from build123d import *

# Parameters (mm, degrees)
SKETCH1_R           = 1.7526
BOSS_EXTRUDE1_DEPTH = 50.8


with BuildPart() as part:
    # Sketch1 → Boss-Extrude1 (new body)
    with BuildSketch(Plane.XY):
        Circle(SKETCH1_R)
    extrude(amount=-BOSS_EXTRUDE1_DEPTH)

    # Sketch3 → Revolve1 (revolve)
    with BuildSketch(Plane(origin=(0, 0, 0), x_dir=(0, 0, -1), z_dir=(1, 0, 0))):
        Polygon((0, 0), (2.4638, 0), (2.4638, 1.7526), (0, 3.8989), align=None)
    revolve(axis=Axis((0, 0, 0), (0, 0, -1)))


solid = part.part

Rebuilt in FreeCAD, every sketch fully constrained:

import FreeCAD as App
import Part
import Sketcher
from FreeCAD import Vector
Q = App.Units.Quantity


def add_polygon(sketch, points):
    """Adds a closed chain of lines whose ends are joined by coincident constraints."""
    first, n = sketch.GeometryCount, len(points)
    for a, b in zip(points, points[1:] + points[:1]):
        sketch.addGeometry(Part.LineSegment(App.Vector(*a, 0), App.Vector(*b, 0)), False)
    for i in range(n):
        sketch.addConstraint(Sketcher.Constraint("Coincident", first + i, 2, first + (i + 1) % n, 1))

doc = App.newDocument("Part")
body = doc.addObject("PartDesign::Body", "Body")

sketch1 = body.newObject("Sketcher::SketchObject", "Sketch")
sketch1.AttachmentSupport = (doc.getObject("XY_Plane"), [""])
sketch1.MapMode = "FlatFace"
sketch1.addGeometry(Part.Circle(Vector(0, 0, 0), Vector(0, 0, 1), 1.8), False)
sketch1.addConstraint(Sketcher.Constraint("Coincident", 0, 3, -1, 1))
sketch1.addConstraint(Sketcher.Constraint("Diameter", 0, Q("0.138 in")))
pad1 = body.newObject("PartDesign::Pad", "Pad")
pad1.Profile = sketch1
pad1.Length = Q("2 in")
pad1.Reversed = True

sketch2 = body.newObject("Sketcher::SketchObject", "Sketch001")
sketch2.AttachmentSupport = (doc.getObject("YZ_Plane"), [""])
sketch2.MapMode = "FlatFace"
add_polygon(sketch2, [(0, 0), (0, -2.5), (1.8, -2.5), (3.9, 0)])
sketch2.addConstraint(Sketcher.Constraint("Vertical", 0))
sketch2.addConstraint(Sketcher.Constraint("Horizontal", 1))
sketch2.addConstraint(Sketcher.Constraint("Horizontal", 3))
sketch2.addConstraint(Sketcher.Constraint("Coincident", 3, 2, -1, 1))
sketch2.addConstraint(Sketcher.Constraint("DistanceX", 1, 1, 1, 2, Q("0.069 in")))
sketch2.addConstraint(Sketcher.Constraint("DistanceY", 0, 2, 0, 1, Q("0.097 in")))
sketch2.addConstraint(Sketcher.Constraint("DistanceX", 3, 2, 3, 1, Q("0.1535 in")))
revolution = body.newObject("PartDesign::Revolution", "Revolution")
revolution.Profile = sketch2
revolution.ReferenceAxis = (sketch2, ["V_Axis"])
revolution.Angle = 360

doc.recompute()
